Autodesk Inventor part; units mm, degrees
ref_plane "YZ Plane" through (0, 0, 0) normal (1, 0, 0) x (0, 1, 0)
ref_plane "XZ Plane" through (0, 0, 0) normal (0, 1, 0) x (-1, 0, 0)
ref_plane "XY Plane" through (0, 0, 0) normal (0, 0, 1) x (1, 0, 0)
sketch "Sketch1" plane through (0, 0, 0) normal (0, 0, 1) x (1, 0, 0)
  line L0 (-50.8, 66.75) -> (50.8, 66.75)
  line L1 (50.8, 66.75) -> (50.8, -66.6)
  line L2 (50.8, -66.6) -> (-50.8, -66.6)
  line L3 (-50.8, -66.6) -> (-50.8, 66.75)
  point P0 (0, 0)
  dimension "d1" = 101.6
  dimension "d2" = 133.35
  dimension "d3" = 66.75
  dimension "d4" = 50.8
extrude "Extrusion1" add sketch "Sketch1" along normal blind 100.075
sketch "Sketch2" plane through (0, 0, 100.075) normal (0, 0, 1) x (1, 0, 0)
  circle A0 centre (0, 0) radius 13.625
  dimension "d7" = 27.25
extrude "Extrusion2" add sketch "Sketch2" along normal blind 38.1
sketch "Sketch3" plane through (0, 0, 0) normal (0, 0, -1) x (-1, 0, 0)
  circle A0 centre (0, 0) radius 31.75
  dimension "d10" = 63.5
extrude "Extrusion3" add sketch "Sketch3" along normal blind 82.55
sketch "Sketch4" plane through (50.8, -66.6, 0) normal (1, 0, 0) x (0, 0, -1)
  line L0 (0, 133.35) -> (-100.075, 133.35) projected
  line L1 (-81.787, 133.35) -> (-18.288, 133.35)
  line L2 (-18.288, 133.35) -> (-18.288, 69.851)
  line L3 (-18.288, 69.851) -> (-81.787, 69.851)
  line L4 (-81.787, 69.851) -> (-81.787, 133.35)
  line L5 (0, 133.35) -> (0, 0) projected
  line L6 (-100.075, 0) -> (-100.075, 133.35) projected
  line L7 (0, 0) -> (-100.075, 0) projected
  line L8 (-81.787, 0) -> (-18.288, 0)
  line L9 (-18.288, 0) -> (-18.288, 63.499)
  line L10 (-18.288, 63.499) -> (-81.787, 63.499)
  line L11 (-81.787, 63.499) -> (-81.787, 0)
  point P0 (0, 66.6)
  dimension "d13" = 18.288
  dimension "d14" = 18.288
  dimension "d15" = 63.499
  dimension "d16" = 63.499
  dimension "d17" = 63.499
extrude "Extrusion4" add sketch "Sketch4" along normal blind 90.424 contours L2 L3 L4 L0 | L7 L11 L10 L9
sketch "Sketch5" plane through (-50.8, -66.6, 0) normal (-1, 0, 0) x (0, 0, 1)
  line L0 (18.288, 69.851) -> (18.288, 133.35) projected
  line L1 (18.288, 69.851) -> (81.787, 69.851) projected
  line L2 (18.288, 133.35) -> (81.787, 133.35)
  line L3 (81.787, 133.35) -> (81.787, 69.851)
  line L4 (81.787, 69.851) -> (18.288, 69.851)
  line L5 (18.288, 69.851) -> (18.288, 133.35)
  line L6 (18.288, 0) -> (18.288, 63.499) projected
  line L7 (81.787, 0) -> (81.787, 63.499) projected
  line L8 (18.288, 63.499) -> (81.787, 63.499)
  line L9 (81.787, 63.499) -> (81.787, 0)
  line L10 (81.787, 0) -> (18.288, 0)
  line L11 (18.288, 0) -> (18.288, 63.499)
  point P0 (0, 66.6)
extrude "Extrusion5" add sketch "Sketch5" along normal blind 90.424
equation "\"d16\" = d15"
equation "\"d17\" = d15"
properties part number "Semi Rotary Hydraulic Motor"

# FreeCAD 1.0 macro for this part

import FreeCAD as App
import Part
import Sketcher

V = App.Vector
Q = App.Units.Quantity


def add_polygon(sketch, points):
    """Adds a closed chain of lines whose ends are joined by coincident constraints."""
    first, n = sketch.GeometryCount, len(points)
    for a, b in zip(points, points[1:] + points[:1]):
        sketch.addGeometry(Part.LineSegment(App.Vector(*a, 0), App.Vector(*b, 0)), False)
    for i in range(n):
        sketch.addConstraint(Sketcher.Constraint("Coincident", first + i, 2, first + (i + 1) % n, 1))

doc = App.newDocument("Part")
body = doc.addObject("PartDesign::Body", "Body")

sketch1 = body.newObject("Sketcher::SketchObject", "Sketch")
sketch1.AttachmentSupport = (doc.getObject("XY_Plane"), [""])
sketch1.MapMode = "FlatFace"
add_polygon(sketch1, [(50.8, 66.75), (-50.8, 66.75), (-50.8, -66.6), (50.8, -66.6)])
sketch1.addConstraint([
    Sketcher.Constraint("Horizontal", 0),
    Sketcher.Constraint("Vertical", 1),
    Sketcher.Constraint("Horizontal", 2),
    Sketcher.Constraint("Vertical", 3),
    Sketcher.Constraint("DistanceX", 0, 2, 0, 1, Q("4 in")),
    Sketcher.Constraint("DistanceX", 0, 2, -1, 1, Q("2 in")),
    Sketcher.Constraint("DistanceY", 1, 2, 1, 1, Q("5.25 in")),
    Sketcher.Constraint("DistanceY", -1, 1, 0, 2, 66.75),
])
pad1 = body.newObject("PartDesign::Pad", "Pad")
pad1.Profile = sketch1
pad1.Length = 100.075

sketch2 = body.newObject("Sketcher::SketchObject", "Sketch001")
sketch2.AttachmentSupport = (doc.getObject("XY_Plane"), [""])
sketch2.MapMode = "FlatFace"
sketch2.AttachmentOffset = App.Placement(V(0, 0, 100.075), App.Rotation())
sketch2.addGeometry(Part.Circle(V(0, 0, 0), V(0, 0, 1), 13.625), False)
sketch2.addConstraint([
    Sketcher.Constraint("Coincident", 0, 3, -1, 1),
    Sketcher.Constraint("Diameter", 0, 27.25),
])
pad2 = body.newObject("PartDesign::Pad", "Pad001")
pad2.Profile = sketch2
pad2.Length = Q("1.5 in")

sketch3 = body.newObject("Sketcher::SketchObject", "Sketch002")
sketch3.AttachmentSupport = (doc.getObject("XY_Plane"), [""])
sketch3.MapMode = "FlatFace"
sketch3.addGeometry(Part.Circle(V(0, 0, 0), V(0, 0, 1), 31.75), False)
sketch3.addConstraint([
    Sketcher.Constraint("Coincident", 0, 3, -1, 1),
    Sketcher.Constraint("Diameter", 0, Q("2.5 in")),
])
pad3 = body.newObject("PartDesign::Pad", "Pad002")
pad3.Profile = sketch3
pad3.Length = Q("3.25 in")
pad3.Reversed = True

sketch4 = body.newObject("Sketcher::SketchObject", "Sketch003")
sketch4.AttachmentSupport = (doc.getObject("YZ_Plane"), [""])
sketch4.MapMode = "FlatFace"
sketch4.AttachmentOffset = App.Placement(V(0, 0, 2 * 25.4), App.Rotation())
add_polygon(sketch4, [(3.251, 18.288), (66.75, 18.288), (66.75, 81.787), (3.251, 81.787)])
add_polygon(sketch4, [(-66.6, 81.787), (-66.6, 18.288), (-3.101, 18.288), (-3.101, 81.787)])
sketch4.addConstraint([
    Sketcher.Constraint("Horizontal", 0),
    Sketcher.Constraint("Vertical", 1),
    Sketcher.Constraint("Horizontal", 2),
    Sketcher.Constraint("Vertical", 3),
    Sketcher.Constraint("Vertical", 4),
    Sketcher.Constraint("Horizontal", 5),
    Sketcher.Constraint("Vertical", 6),
    Sketcher.Constraint("Horizontal", 7),
    Sketcher.Constraint("Horizontal", 3, 2, 4, 2),
    Sketcher.Constraint("Horizontal", 2, 2, 6, 2),
    Sketcher.Constraint("Equal", 2, 5),
    Sketcher.Constraint("Equal", 7, 1),
    Sketcher.Constraint("DistanceY", -1, 1, 0, 2, Q("0.72 in")),
    Sketcher.Constraint("DistanceX", 0, 1, 0, 2, 63.499),
    Sketcher.Constraint("DistanceX", 4, 2, 0, 2, Q("5.25 in")),
    Sketcher.Constraint("DistanceX", -1, 1, 2, 2, Q("0.128 in")),
])
pad4 = body.newObject("PartDesign::Pad", "Pad003")
pad4.Profile = sketch4
pad4.Length = Q("3.56 in")

sketch5 = body.newObject("Sketcher::SketchObject", "Sketch004")
sketch5.AttachmentSupport = (doc.getObject("YZ_Plane"), [""])
sketch5.MapMode = "FlatFace"
sketch5.AttachmentOffset = App.Placement(V(0, 0, -2 * 25.4), App.Rotation())
add_polygon(sketch5, [(66.75, 18.288), (3.251, 18.288), (3.251, 81.787), (66.75, 81.787)])
add_polygon(sketch5, [(-3.101, 18.288), (-66.6, 18.288), (-66.6, 81.787), (-3.101, 81.787)])
sketch5.addConstraint([
    Sketcher.Constraint("Horizontal", 0),
    Sketcher.Constraint("Vertical", 1),
    Sketcher.Constraint("Horizontal", 2),
    Sketcher.Constraint("Vertical", 3),
    Sketcher.Constraint("Horizontal", 4),
    Sketcher.Constraint("Vertical", 5),
    Sketcher.Constraint("Horizontal", 6),
    Sketcher.Constraint("Vertical", 7),
    Sketcher.Constraint("Horizontal", 3, 2, 4, 2),
    Sketcher.Constraint("Horizontal", 2, 2, 5, 2),
    Sketcher.Constraint("Equal", 2, 4),
    Sketcher.Constraint("Equal", 6, 1),
    Sketcher.Constraint("DistanceY", -1, 1, 0, 2, Q("0.72 in")),
    Sketcher.Constraint("DistanceX", 4, 2, 3, 2, Q("5.25 in")),
    Sketcher.Constraint("DistanceX", -1, 1, 0, 2, Q("0.128 in")),
    Sketcher.Constraint("DistanceX", 0, 2, 0, 1, 63.499),
])
pad5 = body.newObject("PartDesign::Pad", "Pad004")
pad5.Profile = sketch5
pad5.Length = Q("3.56 in")
pad5.Reversed = True

doc.recompute()
